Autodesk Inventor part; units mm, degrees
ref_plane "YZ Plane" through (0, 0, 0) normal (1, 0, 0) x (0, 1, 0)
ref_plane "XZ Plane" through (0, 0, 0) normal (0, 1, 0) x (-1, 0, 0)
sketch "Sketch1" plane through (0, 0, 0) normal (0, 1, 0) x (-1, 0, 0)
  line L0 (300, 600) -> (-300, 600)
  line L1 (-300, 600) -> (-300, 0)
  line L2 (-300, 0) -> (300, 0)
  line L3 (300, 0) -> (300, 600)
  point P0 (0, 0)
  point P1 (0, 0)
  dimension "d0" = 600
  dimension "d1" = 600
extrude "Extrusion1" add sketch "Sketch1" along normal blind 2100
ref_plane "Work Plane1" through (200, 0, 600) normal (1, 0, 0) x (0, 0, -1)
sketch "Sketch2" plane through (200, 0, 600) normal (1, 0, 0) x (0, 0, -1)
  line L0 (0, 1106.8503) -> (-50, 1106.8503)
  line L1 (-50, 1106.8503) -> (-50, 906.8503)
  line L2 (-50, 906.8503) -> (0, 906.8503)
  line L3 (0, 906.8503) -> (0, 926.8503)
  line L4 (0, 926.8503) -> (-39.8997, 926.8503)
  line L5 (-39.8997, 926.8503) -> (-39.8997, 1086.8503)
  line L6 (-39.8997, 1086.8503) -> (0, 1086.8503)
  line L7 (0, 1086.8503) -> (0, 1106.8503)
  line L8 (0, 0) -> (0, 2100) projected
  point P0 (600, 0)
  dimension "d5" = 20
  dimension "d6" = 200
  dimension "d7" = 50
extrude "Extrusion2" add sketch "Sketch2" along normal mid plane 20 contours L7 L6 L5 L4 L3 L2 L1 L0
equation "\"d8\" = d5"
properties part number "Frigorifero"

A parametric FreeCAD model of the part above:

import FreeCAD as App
import Part
import Sketcher


def add_polygon(sketch, points):
    """Adds a closed chain of lines whose ends are joined by coincident constraints."""
    first, n = sketch.GeometryCount, len(points)
    for a, b in zip(points, points[1:] + points[:1]):
        sketch.addGeometry(Part.LineSegment(App.Vector(*a, 0), App.Vector(*b, 0)), False)
    for i in range(n):
        sketch.addConstraint(Sketcher.Constraint("Coincident", first + i, 2, first + (i + 1) % n, 1))

doc = App.newDocument("Part")
body = doc.addObject("PartDesign::Body", "Body")

sketch1 = body.newObject("Sketcher::SketchObject", "Sketch")
sketch1.AttachmentSupport = (doc.getObject("XZ_Plane"), [""])
sketch1.MapMode = "FlatFace"
add_polygon(sketch1, [(-300, 0), (-300, 600), (300, 600), (300, 0)])
sketch1.addConstraint([
    Sketcher.Constraint("Vertical", 0),
    Sketcher.Constraint("Horizontal", 1),
    Sketcher.Constraint("Vertical", 2),
    Sketcher.Constraint("Horizontal", 3),
    Sketcher.Constraint("Symmetric", 2, 2, 3, 2, -1, 1),
    Sketcher.Constraint("Equal", 3, 0),
    Sketcher.Constraint("DistanceX", 1, 1, 1, 2, 600.0),
])
pad1 = body.newObject("PartDesign::Pad", "Pad")
pad1.Profile = sketch1
pad1.Length = 2100
pad1.Reversed = True

sketch2 = body.newObject("Sketcher::SketchObject", "Sketch001")
sketch2.AttachmentSupport = (doc.getObject("YZ_Plane"), [""])
sketch2.MapMode = "FlatFace"
sketch2.AttachmentOffset = App.Placement(App.Vector(0, 0, 200), App.Rotation())
add_polygon(sketch2, [(1086.8503, 600), (1106.8503, 600), (1106.8503, 650), (906.8503, 650), (906.8503, 600), (926.8503, 600), (926.8503, 639.8997), (1086.8503, 639.8997)])
sketch2.addConstraint([
    Sketcher.Constraint("Horizontal", 0),
    Sketcher.Constraint("Vertical", 1),
    Sketcher.Constraint("Horizontal", 2),
    Sketcher.Constraint("Vertical", 3),
    Sketcher.Constraint("Horizontal", 4),
    Sketcher.Constraint("Vertical", 5),
    Sketcher.Constraint("Horizontal", 6),
    Sketcher.Constraint("Vertical", 7),
    Sketcher.Constraint("Horizontal", 0, 2, 3, 2),
    Sketcher.Constraint("Equal", 0, 4),
    Sketcher.Constraint("DistanceX", 0, 1, 0, 2, 20.0),
    Sketcher.Constraint("DistanceX", 2, 2, 2, 1, 200.0),
    Sketcher.Constraint("DistanceY", 1, 1, 1, 2, 50.0),
    Sketcher.Constraint("DistanceY", -1, 1, 0, 2, 600.0),
    Sketcher.Constraint("DistanceY", 5, 1, 5, 2, 39.8997),
    Sketcher.Constraint("DistanceX", -1, 1, 0, 2, 1106.8503),
])
pad2 = body.newObject("PartDesign::Pad", "Pad001")
pad2.Profile = sketch2
pad2.Length = 20
pad2.Midplane = True

doc.recompute()
